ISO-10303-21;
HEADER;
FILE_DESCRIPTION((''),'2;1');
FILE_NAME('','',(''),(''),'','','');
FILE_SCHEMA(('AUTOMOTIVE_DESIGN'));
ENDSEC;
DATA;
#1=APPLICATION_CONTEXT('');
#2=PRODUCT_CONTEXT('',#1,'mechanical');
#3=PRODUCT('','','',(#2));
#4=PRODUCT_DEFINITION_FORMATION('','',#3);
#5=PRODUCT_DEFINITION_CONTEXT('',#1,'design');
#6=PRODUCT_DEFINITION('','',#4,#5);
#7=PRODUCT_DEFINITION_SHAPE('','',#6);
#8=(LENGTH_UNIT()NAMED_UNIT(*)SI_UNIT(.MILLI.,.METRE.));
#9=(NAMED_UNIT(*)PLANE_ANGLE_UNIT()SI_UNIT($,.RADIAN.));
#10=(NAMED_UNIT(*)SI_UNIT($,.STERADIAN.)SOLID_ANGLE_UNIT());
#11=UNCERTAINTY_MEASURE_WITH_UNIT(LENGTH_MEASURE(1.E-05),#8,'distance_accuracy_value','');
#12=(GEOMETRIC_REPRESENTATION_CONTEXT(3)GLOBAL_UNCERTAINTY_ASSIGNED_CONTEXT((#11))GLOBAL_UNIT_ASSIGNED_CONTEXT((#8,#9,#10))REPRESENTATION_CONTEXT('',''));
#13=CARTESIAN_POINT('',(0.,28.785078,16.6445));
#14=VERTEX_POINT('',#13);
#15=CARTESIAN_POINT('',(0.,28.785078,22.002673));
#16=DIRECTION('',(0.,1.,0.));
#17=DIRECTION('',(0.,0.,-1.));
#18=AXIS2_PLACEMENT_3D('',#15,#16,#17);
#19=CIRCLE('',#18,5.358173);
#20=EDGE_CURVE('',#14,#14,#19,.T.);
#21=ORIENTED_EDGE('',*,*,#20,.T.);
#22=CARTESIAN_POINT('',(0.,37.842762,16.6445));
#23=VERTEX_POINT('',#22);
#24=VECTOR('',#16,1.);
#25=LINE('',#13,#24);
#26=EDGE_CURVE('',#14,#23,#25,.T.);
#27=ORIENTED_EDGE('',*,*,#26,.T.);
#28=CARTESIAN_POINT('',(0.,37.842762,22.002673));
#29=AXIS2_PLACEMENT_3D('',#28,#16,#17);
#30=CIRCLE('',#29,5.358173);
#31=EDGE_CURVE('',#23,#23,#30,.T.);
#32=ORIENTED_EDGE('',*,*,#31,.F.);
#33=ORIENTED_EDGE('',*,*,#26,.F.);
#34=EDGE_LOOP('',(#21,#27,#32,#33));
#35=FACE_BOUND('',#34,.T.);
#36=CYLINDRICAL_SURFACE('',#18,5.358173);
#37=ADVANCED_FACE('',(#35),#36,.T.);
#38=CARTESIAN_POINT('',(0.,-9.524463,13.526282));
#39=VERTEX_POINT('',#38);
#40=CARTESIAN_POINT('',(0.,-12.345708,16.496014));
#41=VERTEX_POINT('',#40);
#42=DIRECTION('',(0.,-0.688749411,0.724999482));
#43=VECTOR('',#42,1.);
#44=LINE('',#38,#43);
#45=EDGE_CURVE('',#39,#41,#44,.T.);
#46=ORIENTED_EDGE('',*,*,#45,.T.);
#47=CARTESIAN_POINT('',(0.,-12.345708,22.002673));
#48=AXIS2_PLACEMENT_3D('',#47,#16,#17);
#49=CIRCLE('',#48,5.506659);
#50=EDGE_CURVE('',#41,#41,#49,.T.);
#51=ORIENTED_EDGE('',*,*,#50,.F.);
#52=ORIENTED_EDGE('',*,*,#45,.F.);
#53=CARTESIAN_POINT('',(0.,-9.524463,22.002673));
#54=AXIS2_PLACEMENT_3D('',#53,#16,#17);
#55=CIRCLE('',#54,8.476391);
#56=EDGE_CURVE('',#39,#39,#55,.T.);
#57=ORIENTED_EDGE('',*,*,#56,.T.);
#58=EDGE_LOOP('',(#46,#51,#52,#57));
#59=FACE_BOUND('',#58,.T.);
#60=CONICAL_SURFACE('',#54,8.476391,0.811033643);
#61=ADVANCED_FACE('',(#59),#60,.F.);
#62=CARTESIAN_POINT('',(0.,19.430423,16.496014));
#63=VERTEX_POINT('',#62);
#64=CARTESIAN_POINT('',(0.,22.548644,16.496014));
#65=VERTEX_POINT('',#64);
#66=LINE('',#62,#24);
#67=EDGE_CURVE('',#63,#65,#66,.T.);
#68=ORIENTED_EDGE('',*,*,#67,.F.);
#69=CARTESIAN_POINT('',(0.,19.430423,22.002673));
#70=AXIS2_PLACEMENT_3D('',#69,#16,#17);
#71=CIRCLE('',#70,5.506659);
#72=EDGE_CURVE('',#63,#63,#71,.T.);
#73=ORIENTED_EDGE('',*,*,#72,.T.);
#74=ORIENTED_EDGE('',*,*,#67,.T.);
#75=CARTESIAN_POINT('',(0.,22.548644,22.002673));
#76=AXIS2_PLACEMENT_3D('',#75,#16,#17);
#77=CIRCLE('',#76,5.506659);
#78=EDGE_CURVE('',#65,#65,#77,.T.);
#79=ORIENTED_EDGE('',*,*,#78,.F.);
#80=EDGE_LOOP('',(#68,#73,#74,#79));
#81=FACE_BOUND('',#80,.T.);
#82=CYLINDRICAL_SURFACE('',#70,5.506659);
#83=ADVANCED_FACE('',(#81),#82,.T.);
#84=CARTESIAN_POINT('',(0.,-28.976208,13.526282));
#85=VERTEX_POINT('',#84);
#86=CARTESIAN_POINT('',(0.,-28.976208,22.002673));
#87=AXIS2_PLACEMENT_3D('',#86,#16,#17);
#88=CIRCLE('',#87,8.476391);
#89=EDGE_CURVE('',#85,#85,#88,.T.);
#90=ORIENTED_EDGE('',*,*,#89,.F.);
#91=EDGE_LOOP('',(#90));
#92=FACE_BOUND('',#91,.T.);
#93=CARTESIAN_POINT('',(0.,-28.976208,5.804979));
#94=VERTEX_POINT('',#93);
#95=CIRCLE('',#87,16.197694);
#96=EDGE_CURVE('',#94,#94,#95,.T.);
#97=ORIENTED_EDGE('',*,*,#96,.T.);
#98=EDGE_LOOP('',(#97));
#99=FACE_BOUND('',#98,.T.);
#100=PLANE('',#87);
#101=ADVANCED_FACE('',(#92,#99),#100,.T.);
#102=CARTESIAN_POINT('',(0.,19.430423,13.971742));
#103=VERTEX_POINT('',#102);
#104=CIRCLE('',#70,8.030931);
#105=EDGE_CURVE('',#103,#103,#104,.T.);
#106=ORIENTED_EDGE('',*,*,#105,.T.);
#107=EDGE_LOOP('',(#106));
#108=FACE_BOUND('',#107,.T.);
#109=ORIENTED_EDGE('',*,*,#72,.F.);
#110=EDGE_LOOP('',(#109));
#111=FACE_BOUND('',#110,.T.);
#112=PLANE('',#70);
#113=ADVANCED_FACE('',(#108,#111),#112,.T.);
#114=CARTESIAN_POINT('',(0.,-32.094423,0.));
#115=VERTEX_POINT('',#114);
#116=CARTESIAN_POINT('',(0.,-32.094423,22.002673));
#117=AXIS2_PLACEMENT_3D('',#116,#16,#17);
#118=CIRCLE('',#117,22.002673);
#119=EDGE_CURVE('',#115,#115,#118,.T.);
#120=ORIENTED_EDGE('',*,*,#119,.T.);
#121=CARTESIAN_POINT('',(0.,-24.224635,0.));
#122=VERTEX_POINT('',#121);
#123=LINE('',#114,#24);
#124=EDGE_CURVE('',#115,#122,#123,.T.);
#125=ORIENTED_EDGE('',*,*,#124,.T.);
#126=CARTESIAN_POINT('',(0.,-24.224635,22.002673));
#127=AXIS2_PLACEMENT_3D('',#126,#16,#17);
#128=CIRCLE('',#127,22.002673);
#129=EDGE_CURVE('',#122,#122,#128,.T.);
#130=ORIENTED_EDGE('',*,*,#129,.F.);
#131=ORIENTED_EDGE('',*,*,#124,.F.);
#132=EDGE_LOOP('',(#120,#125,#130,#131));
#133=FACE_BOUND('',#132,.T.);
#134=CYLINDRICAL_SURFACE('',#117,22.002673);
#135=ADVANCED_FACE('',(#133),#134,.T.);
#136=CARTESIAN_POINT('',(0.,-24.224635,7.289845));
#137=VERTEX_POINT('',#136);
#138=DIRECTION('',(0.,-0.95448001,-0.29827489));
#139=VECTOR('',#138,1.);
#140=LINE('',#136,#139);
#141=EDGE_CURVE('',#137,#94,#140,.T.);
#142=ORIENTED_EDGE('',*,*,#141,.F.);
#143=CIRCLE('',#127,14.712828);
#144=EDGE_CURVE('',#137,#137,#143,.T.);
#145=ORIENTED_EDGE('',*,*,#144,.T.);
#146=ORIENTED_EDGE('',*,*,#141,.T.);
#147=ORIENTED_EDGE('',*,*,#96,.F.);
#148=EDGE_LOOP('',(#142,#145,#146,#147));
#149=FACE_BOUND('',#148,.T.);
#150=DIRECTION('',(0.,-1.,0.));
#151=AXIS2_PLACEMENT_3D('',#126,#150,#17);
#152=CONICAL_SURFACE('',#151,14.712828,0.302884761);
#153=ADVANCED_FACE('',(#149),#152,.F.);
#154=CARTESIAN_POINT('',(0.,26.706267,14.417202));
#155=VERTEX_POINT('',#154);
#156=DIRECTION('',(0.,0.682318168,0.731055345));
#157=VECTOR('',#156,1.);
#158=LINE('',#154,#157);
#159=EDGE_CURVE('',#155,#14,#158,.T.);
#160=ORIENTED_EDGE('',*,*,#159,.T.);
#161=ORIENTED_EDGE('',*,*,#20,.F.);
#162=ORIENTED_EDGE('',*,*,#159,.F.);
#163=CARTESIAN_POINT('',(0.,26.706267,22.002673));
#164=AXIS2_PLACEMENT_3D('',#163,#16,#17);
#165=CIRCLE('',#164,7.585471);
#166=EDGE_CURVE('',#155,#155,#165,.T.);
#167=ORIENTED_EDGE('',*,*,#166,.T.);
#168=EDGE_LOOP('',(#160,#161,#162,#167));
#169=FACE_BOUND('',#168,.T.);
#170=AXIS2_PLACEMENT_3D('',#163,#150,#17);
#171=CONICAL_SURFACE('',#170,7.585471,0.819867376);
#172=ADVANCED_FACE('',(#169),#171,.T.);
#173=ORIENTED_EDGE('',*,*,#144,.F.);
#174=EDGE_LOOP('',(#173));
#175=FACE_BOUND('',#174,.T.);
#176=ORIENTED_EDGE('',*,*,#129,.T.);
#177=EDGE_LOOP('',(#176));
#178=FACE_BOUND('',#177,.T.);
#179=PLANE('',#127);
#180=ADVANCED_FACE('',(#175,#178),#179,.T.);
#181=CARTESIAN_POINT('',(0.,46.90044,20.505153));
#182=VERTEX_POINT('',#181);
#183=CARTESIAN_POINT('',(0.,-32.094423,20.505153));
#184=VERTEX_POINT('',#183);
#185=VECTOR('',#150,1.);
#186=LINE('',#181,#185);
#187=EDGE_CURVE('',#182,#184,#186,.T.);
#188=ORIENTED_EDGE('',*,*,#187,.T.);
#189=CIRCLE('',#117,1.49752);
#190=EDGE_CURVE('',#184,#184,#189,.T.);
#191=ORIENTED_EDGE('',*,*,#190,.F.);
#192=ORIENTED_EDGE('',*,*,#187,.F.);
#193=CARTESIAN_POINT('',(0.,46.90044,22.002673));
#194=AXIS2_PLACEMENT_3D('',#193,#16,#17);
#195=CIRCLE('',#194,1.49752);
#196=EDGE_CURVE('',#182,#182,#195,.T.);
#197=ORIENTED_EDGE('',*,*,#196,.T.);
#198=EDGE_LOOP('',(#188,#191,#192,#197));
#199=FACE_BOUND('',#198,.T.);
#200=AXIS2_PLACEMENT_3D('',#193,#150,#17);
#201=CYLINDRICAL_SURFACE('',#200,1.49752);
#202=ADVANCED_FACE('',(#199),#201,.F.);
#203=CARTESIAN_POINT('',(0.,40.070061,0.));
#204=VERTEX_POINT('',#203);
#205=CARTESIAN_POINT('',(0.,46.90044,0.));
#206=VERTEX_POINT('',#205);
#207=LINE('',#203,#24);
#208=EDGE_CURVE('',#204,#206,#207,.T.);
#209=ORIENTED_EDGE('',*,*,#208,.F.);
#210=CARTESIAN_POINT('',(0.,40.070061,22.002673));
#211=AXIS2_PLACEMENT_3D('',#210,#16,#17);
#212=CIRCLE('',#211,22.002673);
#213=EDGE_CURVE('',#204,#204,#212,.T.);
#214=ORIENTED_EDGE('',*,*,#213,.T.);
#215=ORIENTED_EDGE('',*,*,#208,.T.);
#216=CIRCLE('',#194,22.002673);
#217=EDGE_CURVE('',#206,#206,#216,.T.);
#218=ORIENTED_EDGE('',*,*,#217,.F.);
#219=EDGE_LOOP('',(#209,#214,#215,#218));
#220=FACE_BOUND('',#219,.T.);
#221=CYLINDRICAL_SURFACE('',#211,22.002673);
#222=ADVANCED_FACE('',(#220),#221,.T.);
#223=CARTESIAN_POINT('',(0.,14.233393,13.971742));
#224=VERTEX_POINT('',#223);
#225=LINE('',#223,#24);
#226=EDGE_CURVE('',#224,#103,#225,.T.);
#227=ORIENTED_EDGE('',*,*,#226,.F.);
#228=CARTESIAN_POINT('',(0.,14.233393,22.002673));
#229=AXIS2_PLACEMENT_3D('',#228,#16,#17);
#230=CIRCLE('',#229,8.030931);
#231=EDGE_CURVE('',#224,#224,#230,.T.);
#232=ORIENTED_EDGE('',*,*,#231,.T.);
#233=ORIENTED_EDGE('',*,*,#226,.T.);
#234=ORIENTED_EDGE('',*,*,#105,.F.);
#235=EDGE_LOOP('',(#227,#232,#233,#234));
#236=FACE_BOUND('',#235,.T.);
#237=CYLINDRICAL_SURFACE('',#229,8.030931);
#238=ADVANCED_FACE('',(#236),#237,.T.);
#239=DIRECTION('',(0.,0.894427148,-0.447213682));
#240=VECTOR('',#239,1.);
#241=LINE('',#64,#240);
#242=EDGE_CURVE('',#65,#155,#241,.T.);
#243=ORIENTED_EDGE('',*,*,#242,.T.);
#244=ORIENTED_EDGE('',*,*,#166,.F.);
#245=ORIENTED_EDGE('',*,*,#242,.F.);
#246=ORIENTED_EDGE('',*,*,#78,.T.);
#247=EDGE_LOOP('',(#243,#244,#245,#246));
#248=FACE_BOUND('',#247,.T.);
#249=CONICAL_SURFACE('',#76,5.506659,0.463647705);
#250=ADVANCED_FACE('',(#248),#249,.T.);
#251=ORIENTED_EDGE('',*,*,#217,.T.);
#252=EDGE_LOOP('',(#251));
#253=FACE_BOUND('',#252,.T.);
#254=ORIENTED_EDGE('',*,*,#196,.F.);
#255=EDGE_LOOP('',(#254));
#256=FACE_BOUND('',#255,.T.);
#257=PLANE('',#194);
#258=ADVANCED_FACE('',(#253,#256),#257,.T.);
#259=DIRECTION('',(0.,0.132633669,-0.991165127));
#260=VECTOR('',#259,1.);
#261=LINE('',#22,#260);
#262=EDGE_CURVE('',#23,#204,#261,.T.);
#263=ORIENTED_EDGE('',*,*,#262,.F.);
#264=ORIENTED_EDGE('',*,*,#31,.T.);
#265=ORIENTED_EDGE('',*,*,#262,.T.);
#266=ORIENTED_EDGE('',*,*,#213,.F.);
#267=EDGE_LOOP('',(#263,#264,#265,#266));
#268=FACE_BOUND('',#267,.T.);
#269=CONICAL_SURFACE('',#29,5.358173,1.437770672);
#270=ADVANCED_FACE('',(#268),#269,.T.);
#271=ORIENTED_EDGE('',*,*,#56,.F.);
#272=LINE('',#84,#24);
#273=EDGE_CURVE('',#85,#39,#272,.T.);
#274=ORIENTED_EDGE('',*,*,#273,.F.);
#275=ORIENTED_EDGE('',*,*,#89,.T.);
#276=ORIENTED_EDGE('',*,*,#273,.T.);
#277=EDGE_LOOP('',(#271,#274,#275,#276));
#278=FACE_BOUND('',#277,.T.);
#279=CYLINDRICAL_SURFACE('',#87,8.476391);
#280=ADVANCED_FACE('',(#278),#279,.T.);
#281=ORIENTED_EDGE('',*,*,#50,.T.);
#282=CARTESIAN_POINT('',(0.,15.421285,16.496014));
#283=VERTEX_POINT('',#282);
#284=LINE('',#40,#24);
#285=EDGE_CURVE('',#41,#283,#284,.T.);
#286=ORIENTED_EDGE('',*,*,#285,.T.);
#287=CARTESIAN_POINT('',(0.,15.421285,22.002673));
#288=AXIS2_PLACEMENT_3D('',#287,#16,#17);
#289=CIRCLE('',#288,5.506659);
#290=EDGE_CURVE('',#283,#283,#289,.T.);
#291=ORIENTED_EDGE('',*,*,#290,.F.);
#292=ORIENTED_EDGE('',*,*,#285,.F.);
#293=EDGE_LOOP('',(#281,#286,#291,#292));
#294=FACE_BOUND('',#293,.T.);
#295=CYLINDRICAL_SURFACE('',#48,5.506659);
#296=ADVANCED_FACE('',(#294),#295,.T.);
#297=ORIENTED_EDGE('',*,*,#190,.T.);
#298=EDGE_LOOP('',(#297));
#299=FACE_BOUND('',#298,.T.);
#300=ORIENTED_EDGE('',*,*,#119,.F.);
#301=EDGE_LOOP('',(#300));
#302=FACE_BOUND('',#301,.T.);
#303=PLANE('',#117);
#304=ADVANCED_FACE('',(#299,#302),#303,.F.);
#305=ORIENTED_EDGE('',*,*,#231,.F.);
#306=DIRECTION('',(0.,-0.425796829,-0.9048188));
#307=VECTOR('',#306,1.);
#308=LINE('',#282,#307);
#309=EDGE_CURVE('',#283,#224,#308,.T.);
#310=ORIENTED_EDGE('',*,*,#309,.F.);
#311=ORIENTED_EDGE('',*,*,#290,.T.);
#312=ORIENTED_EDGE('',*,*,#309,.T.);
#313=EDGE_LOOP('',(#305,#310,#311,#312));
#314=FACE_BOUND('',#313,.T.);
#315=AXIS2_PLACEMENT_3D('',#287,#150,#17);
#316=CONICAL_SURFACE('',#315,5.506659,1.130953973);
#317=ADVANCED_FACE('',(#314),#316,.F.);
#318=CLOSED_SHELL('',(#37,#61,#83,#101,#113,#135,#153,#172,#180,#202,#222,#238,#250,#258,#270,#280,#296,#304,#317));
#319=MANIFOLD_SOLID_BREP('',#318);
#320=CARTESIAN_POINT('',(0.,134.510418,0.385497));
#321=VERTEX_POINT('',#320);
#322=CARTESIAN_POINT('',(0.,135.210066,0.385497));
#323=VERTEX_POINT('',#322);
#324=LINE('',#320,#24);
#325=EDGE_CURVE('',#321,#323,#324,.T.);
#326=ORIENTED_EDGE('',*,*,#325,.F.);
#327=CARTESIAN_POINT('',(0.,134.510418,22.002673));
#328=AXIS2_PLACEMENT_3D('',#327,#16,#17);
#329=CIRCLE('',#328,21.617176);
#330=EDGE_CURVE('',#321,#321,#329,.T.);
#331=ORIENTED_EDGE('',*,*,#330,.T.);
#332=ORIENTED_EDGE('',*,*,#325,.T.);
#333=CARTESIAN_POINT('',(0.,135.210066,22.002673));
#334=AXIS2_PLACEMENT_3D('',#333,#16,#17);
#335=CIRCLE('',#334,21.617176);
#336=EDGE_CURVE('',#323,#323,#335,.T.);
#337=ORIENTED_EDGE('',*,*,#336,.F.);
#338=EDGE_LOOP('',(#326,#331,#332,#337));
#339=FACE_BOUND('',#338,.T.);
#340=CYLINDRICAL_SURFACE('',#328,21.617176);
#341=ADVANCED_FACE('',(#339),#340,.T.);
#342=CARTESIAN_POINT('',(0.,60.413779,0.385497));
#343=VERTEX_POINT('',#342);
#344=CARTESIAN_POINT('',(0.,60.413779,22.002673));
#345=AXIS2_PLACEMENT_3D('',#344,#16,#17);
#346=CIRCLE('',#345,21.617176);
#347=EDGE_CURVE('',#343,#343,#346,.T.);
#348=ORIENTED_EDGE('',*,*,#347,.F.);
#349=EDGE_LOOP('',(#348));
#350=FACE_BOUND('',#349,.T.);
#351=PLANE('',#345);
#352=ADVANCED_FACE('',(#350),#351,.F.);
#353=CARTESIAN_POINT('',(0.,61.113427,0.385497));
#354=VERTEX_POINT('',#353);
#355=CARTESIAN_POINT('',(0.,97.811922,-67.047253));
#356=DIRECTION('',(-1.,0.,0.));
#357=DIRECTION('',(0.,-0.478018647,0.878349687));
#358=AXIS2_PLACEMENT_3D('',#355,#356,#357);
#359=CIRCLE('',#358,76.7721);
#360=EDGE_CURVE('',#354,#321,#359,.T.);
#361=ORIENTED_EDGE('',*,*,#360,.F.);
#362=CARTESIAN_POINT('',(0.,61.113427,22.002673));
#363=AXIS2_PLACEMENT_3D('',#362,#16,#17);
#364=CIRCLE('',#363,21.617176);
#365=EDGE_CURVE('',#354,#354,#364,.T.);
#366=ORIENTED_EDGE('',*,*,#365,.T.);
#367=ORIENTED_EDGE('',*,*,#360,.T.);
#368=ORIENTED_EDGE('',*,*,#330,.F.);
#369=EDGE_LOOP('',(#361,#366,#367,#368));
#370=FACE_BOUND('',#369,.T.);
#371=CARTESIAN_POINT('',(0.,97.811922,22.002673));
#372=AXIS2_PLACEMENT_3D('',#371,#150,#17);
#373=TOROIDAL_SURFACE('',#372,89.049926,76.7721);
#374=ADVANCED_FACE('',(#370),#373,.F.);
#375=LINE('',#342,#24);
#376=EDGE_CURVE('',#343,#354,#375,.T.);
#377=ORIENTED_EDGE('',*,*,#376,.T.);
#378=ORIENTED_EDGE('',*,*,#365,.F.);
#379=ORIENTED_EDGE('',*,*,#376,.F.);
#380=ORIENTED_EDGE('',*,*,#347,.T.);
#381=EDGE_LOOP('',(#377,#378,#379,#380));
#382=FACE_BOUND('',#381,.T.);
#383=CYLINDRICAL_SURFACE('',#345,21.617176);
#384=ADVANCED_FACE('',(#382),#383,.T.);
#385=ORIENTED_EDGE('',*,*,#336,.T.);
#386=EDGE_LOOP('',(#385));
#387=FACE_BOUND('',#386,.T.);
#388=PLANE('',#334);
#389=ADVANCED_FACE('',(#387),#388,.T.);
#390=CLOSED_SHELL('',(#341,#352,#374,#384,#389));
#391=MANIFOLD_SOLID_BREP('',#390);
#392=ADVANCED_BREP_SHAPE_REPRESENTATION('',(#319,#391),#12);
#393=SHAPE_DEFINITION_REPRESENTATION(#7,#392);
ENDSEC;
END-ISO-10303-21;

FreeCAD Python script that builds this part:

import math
import FreeCAD as App
import Part
import Sketcher

V = App.Vector


def add_polygon(sketch, points):
    """Adds a closed chain of lines whose ends are joined by coincident constraints."""
    first, n = sketch.GeometryCount, len(points)
    for a, b in zip(points, points[1:] + points[:1]):
        sketch.addGeometry(Part.LineSegment(App.Vector(*a, 0), App.Vector(*b, 0)), False)
    for i in range(n):
        sketch.addConstraint(Sketcher.Constraint("Coincident", first + i, 2, first + (i + 1) % n, 1))

doc = App.newDocument("Part")
body = doc.addObject("PartDesign::Body", "Body")
body.AllowCompound = True

sketch1 = doc.addObject("Sketcher::SketchObject", "Sketch")
body.addObject(sketch1)
sketch1.AttachmentSupport = (doc.YZ_Plane, [""])
sketch1.MapMode = "FlatFace"
add_polygon(sketch1, [(-32.1, 20.5), (-32.1, 0), (-24.2, 0), (-24.2, 7.3), (-29, 5.8), (-29, 13.5), (-9.5, 13.5), (-12.3, 16.5), (15.4, 16.5), (14.2, 14), (19.4, 14), (19.4, 16.5), (22.5, 16.5), (26.7, 14.4), (28.8, 16.6), (37.8, 16.6), (40.1, 0), (46.9, 0), (46.9, 20.5)])
sketch1.addGeometry(Part.ArcOfCircle(Part.Circle(V(97.8, -67, 0), V(0, 0, 1), 76.8), math.radians(61), math.radians(119)), False)
sketch1.addGeometry(Part.LineSegment(V(134.5, 0.4, 0), V(135.2, 0.4, 0)), False)
sketch1.addGeometry(Part.LineSegment(V(135.2, 0.4, 0), V(135.2, 22, 0)), False)
sketch1.addGeometry(Part.LineSegment(V(135.2, 22, 0), V(60.4, 22, 0)), False)
sketch1.addGeometry(Part.LineSegment(V(60.4, 22, 0), V(60.4, 0.4, 0)), False)
sketch1.addGeometry(Part.LineSegment(V(60.4, 0.4, 0), V(61.1, 0.4, 0)), False)
sketch1.addGeometry(Part.LineSegment(V(-32.1, 22, 0), V(135.2, 22, 0)), True)
sketch1.addConstraint(Sketcher.Constraint("Coincident", 19, 1, 20, 1))
sketch1.addConstraint(Sketcher.Constraint("Coincident", 20, 2, 21, 1))
sketch1.addConstraint(Sketcher.Constraint("Coincident", 21, 2, 22, 1))
sketch1.addConstraint(Sketcher.Constraint("Coincident", 22, 2, 23, 1))
sketch1.addConstraint(Sketcher.Constraint("Coincident", 23, 2, 24, 1))
sketch1.addConstraint(Sketcher.Constraint("Coincident", 24, 2, 19, 2))
sketch1.addConstraint(Sketcher.Constraint("Vertical", 0))
sketch1.addConstraint(Sketcher.Constraint("Horizontal", 1))
sketch1.addConstraint(Sketcher.Constraint("Vertical", 2))
sketch1.addConstraint(Sketcher.Constraint("Vertical", 4))
sketch1.addConstraint(Sketcher.Constraint("Horizontal", 5))
sketch1.addConstraint(Sketcher.Constraint("Horizontal", 7))
sketch1.addConstraint(Sketcher.Constraint("Horizontal", 9))
sketch1.addConstraint(Sketcher.Constraint("Vertical", 10))
sketch1.addConstraint(Sketcher.Constraint("Horizontal", 11))
sketch1.addConstraint(Sketcher.Constraint("Horizontal", 14))
sketch1.addConstraint(Sketcher.Constraint("Horizontal", 16))
sketch1.addConstraint(Sketcher.Constraint("Vertical", 17))
sketch1.addConstraint(Sketcher.Constraint("Horizontal", 18))
sketch1.addConstraint(Sketcher.Constraint("Horizontal", 20))
sketch1.addConstraint(Sketcher.Constraint("Vertical", 21))
sketch1.addConstraint(Sketcher.Constraint("Horizontal", 22))
sketch1.addConstraint(Sketcher.Constraint("Vertical", 23))
sketch1.addConstraint(Sketcher.Constraint("Horizontal", 24))
sketch1.addConstraint(Sketcher.Constraint("Horizontal", 25))
sketch1.addConstraint(Sketcher.Constraint("Coincident", 25, 2, 21, 2))
sketch1.addConstraint(Sketcher.Constraint("PointOnObject", 0, 2, -1))
sketch1.addConstraint(Sketcher.Constraint("PointOnObject", 15, 2, -1))
sketch1.addConstraint(Sketcher.Constraint("Horizontal", 7, 2, 10, 2))
sketch1.addConstraint(Sketcher.Constraint("Horizontal", 20, 2, 23, 2))
sketch1.addConstraint(Sketcher.Constraint("Vertical", 18, 2, 25, 1))
sketch1.addConstraint(Sketcher.Constraint("Equal", 20, 24))
sketch1.addConstraint(Sketcher.Constraint("Radius", 19, 76.7721))
sketch1.addConstraint(Sketcher.Constraint("DistanceX", 9, 1, 9, 2, 5.19703))
sketch1.addConstraint(Sketcher.Constraint("DistanceX", 11, 1, 11, 2, 3.118221))
sketch1.addConstraint(Sketcher.Constraint("DistanceX", 16, 1, 16, 2, 6.830379))
sketch1.addConstraint(Sketcher.Constraint("DistanceX", 20, 1, 20, 2, 0.699648))
sketch1.addConstraint(Sketcher.Constraint("DistanceX", 25, 1, 25, 2, 167.304489))
sketch1.addConstraint(Sketcher.Constraint("DistanceY", 10, 1, 10, 2, 2.524272))
sketch1.addConstraint(Sketcher.Constraint("DistanceY", -1, 1, 13, 2, 16.6445))
sketch1.addConstraint(Sketcher.Constraint("DistanceY", 19, 3, 2, 2, 74.337098))
sketch1.addConstraint(Sketcher.Constraint("DistanceX", 4, 2, 6, 2, 16.6305))
sketch1.addConstraint(Sketcher.Constraint("DistanceX", 6, 2, 8, 2, 26.579101))
sketch1.addConstraint(Sketcher.Constraint("DistanceY", 12, 2, 13, 2, 2.227298))
sketch1.addConstraint(Sketcher.Constraint("DistanceX", 14, 2, 15, 2, 2.227299))
sketch1.addConstraint(Sketcher.Constraint("DistanceX", 13, 2, 22, 2, 31.628701))
sketch1.addConstraint(Sketcher.Constraint("Distance", 3, 4.97818))
sketch1.addConstraint(Sketcher.Constraint("Distance", 8, 2.789809))
sketch1.addConstraint(Sketcher.Constraint("Distance", 13, 3.046689))
sketch1.addConstraint(Sketcher.Constraint("DistanceX", 1, 1, 1, 2, 7.869788))
sketch1.addConstraint(Sketcher.Constraint("DistanceX", 5, 1, 5, 2, 19.451745))
sketch1.addConstraint(Sketcher.Constraint("DistanceX", 14, 1, 14, 2, 9.057684))
sketch1.addConstraint(Sketcher.Constraint("DistanceX", 18, 2, 18, 1, 78.994863))
sketch1.addConstraint(Sketcher.Constraint("DistanceY", 0, 2, 0, 1, 20.505153))
sketch1.addConstraint(Sketcher.Constraint("DistanceY", 2, 1, 2, 2, 7.289845))
sketch1.addConstraint(Sketcher.Constraint("DistanceY", 4, 1, 4, 2, 7.721303))
sketch1.addConstraint(Sketcher.Constraint("DistanceY", 21, 1, 21, 2, 21.617176))
sketch1.addConstraint(Sketcher.Constraint("DistanceX", 3, 2, -1, 1, 28.976208))
sketch1.addConstraint(Sketcher.Constraint("DistanceY", -1, 1, 3, 2, 5.804979))
sketch1.addConstraint(Sketcher.Constraint("DistanceY", 5, 2, 6, 2, 2.969732))
revolution = doc.addObject("PartDesign::Revolution", "Revolution")
body.addObject(revolution)
revolution.Profile = sketch1
revolution.ReferenceAxis = (sketch1, ["Axis0"])
revolution.Angle = 360

doc.recompute()
